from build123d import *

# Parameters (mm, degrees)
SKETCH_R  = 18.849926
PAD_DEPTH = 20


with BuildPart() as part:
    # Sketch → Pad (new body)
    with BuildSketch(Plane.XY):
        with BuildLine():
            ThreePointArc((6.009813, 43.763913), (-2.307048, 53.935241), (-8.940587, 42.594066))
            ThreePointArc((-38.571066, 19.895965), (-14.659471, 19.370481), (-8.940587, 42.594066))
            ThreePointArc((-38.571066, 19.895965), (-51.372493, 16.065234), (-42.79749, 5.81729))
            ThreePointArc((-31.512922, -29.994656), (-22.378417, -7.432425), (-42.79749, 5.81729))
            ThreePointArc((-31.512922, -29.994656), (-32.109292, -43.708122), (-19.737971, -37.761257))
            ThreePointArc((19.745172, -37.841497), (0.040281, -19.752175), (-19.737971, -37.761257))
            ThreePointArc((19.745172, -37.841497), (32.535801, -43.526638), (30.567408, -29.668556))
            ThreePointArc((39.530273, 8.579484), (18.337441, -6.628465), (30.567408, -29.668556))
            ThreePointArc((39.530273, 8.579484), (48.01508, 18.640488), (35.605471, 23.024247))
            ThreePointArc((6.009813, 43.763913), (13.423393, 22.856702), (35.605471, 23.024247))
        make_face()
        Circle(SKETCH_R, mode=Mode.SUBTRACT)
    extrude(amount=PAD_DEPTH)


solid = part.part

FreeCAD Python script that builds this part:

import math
import FreeCAD as App
import Part
import Sketcher
from FreeCAD import Vector
Q = App.Units.Quantity

doc = App.newDocument("Part")
body = doc.addObject("PartDesign::Body", "Body")

# Sketch on XY plane
sketch1 = body.newObject("Sketcher::SketchObject", "Sketch")
sketch1.AttachmentSupport = (doc.getObject("XY_Plane"), [""])
sketch1.MapMode = "FlatFace"
sketch1.addGeometry(Part.ArcOfCircle(Part.Circle(Vector(-1.682967, 45.95962, 0), Vector(0, 0, 1), 8), math.radians(-15.930041), math.radians(204.87843)), False)
sketch1.addGeometry(Part.ArcOfCircle(Part.Circle(Vector(-26.287459, 34.549851, 0), Vector(0, 0, 1), 19.12128), math.radians(-129.971392), math.radians(24.878435)), False)
sketch1.addGeometry(Part.ArcOfCircle(Part.Circle(Vector(-43.710306, 13.765042, 0), Vector(0, 0, 1), 8), math.radians(50.028614), math.radians(276.55183)), False)
sketch1.addGeometry(Part.ArcOfCircle(Part.Circle(Vector(-40.615714, -13.179111, 0), Vector(0, 0, 1), 19.121281), math.radians(-61.571902), math.radians(96.551832)), False)
sketch1.addGeometry(Part.ArcOfCircle(Part.Circle(Vector(-27.704478, -37.029978, 0), Vector(0, 0, 1), 8), math.radians(118.428098), math.radians(354.755277)), False)
sketch1.addGeometry(Part.ArcOfCircle(Part.Circle(Vector(0, -39.573088, 0), Vector(0, 0, 1), 19.820954), math.radians(5.011843), math.radians(174.755277)), False)
sketch1.addGeometry(Part.ArcOfCircle(Part.Circle(Vector(27.714585, -37.142605, 0), Vector(0, 0, 1), 8), math.radians(-174.988164), math.radians(69.10829)), False)
sketch1.addGeometry(Part.ArcOfCircle(Part.Circle(Vector(37.635616, -11.150709, 0), Vector(0, 0, 1), 19.820954), math.radians(84.514801), math.radians(249.108292)), False)
sketch1.addGeometry(Part.ArcOfCircle(Part.Circle(Vector(40.294982, 16.542851, 0), Vector(0, 0, 1), 8), math.radians(-95.485197), math.radians(125.88702)), False)
sketch1.addGeometry(Part.ArcOfCircle(Part.Circle(Vector(24.396789, 38.515819, 0), Vector(0, 0, 1), 19.12128), math.radians(164.069954), math.radians(305.887024)), False)
sketch1.addGeometry(Part.Circle(Vector(0, 0, 0), Vector(0, 0, 1), 18.849926), False)
sketch1.addConstraint(Sketcher.Constraint("Tangent", 0, 2, 1, 2))
sketch1.addConstraint(Sketcher.Constraint("Tangent", 1, 1, 2, 1))
sketch1.addConstraint(Sketcher.Constraint("Tangent", 2, 2, 3, 2))
sketch1.addConstraint(Sketcher.Constraint("Tangent", 3, 1, 4, 1))
sketch1.addConstraint(Sketcher.Constraint("Tangent", 4, 2, 5, 2))
sketch1.addConstraint(Sketcher.Constraint("Tangent", 5, 1, 6, 1))
sketch1.addConstraint(Sketcher.Constraint("Tangent", 6, 2, 7, 2))
sketch1.addConstraint(Sketcher.Constraint("Tangent", 7, 1, 8, 1))
sketch1.addConstraint(Sketcher.Constraint("Tangent", 8, 2, 9, 2))
sketch1.addConstraint(Sketcher.Constraint("Tangent", 9, 1, 0, 1))
sketch1.addConstraint(Sketcher.Constraint("Coincident", 10, 3, -1, 1))
sketch1.addConstraint(Sketcher.Constraint("Equal", 0, 2))
sketch1.addConstraint(Sketcher.Constraint("Equal", 1, 3))
sketch1.addConstraint(Sketcher.Constraint("Equal", 2, 4))
sketch1.addConstraint(Sketcher.Constraint("Equal", 4, 6))
sketch1.addConstraint(Sketcher.Constraint("Equal", 5, 7))
sketch1.addConstraint(Sketcher.Constraint("Equal", 6, 8))
sketch1.addConstraint(Sketcher.Constraint("Equal", 3, 9))
sketch1.addConstraint(Sketcher.Constraint("PointOnObject", 5, 3, -2))
sketch1.addConstraint(Sketcher.Constraint("Radius", 0, Q("8 mm")))
sketch1.addConstraint(Sketcher.Constraint("Radius", 1, Q("19.12128 mm")))
sketch1.addConstraint(Sketcher.Constraint("Diameter", 10, Q("37.699852 mm")))
sketch1.addConstraint(Sketcher.Constraint("Radius", 5, Q("19.820954 mm")))
sketch1.addConstraint(Sketcher.Constraint("DistanceY", 8, 3, 1, 3, Q("18.006999 mm")))
sketch1.addConstraint(Sketcher.Constraint("DistanceY", 4, 3, 0, 3, Q("82.989598 mm")))
sketch1.addConstraint(Sketcher.Constraint("DistanceX", 3, 3, 6, 3, Q("68.330299 mm")))
sketch1.addConstraint(Sketcher.Constraint("DistanceY", 3, 3, 7, 3, Q("2.028402 mm")))
sketch1.addConstraint(Sketcher.Constraint("DistanceY", 9, 3, 0, 3, Q("7.443801 mm")))
sketch1.addConstraint(Sketcher.Constraint("DistanceY", 1, 1, 0, 2, Q("22.698101 mm")))
sketch1.addConstraint(Sketcher.Constraint("DistanceY", 3, 3, 2, 2, Q("18.996401 mm")))
sketch1.addConstraint(Sketcher.Constraint("DistanceY", 4, 2, 3, 1, Q("7.766601 mm")))
sketch1.addConstraint(Sketcher.Constraint("DistanceY", -1, 1, 0, 3, Q("45.95962 mm")))
pad1 = body.newObject("PartDesign::Pad", "Pad")
pad1.Profile = sketch1
pad1.Length = 20

doc.recompute()
